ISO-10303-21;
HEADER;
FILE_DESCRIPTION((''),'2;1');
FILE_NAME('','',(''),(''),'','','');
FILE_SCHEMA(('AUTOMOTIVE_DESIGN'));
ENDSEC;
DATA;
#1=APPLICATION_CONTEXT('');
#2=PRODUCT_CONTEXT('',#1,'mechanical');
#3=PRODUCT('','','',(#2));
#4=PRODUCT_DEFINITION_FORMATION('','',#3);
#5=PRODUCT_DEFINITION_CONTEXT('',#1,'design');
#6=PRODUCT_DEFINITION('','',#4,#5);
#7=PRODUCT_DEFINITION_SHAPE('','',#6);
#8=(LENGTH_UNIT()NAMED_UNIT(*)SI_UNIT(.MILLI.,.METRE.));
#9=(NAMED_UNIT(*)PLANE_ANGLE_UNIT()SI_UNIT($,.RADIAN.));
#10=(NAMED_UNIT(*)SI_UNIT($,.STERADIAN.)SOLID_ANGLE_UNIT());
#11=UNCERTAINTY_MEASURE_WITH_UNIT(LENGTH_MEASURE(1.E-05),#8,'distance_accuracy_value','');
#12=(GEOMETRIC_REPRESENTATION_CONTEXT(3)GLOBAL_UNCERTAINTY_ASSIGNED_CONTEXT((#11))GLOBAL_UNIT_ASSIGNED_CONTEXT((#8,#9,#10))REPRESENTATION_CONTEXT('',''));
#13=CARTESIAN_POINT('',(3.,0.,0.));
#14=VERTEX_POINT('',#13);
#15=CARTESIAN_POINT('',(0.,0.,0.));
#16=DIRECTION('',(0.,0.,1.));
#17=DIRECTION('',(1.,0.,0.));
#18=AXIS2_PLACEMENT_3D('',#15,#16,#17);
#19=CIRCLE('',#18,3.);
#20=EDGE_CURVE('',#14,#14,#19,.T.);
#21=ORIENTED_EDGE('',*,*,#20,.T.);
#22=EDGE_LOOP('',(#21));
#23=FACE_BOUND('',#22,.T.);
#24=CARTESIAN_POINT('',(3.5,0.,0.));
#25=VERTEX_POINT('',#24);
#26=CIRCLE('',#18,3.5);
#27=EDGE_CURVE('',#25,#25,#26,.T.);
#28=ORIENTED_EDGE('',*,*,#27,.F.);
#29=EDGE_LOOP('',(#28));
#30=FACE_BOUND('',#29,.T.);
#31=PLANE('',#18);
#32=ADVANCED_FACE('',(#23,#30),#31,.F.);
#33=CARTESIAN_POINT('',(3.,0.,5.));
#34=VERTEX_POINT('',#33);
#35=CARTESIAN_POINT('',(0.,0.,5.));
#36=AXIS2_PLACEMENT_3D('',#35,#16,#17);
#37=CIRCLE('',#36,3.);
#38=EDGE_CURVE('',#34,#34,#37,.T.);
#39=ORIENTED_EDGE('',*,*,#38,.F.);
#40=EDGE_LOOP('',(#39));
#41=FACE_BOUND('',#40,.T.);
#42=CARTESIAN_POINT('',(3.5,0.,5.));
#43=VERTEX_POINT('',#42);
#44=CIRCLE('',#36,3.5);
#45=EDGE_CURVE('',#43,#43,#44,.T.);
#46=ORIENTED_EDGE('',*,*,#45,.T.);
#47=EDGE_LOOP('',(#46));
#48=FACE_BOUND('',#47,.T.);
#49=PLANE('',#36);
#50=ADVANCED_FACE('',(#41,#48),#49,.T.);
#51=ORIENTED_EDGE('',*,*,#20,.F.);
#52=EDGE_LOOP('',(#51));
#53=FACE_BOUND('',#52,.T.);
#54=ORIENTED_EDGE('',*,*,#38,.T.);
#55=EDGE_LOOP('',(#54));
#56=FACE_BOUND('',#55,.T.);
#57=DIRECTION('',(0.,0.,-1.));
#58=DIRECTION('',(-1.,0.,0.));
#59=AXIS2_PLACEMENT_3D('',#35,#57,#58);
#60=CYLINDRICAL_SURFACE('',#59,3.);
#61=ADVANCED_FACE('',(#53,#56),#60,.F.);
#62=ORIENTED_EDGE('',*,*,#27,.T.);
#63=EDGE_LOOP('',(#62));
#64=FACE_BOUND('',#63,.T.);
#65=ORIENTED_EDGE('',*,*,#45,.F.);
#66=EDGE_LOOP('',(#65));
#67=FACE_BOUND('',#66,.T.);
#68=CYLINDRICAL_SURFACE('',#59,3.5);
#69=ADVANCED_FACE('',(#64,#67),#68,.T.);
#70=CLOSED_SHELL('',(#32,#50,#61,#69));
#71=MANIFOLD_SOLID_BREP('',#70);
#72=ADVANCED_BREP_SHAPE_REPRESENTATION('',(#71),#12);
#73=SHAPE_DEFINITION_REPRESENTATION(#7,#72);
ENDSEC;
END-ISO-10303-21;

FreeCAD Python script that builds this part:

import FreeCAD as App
import Part
import Sketcher
Q = App.Units.Quantity

doc = App.newDocument("Part")
body = doc.addObject("PartDesign::Body", "Body")

sketch1 = doc.addObject("Sketcher::SketchObject", "Sketch")
body.addObject(sketch1)
sketch1.AttachmentSupport = (doc.XY_Plane, [""])
sketch1.MapMode = "FlatFace"
sketch1.addGeometry(Part.Circle(App.Vector(0, 0, 0), App.Vector(0, 0, 1), 3.5), False)
sketch1.addGeometry(Part.Circle(App.Vector(0, 0, 0), App.Vector(0, 0, 1), 3), False)
sketch1.addConstraint(Sketcher.Constraint("Coincident", 0, 3, -1, 1))
sketch1.addConstraint(Sketcher.Constraint("Coincident", 1, 3, -1, 1))
sketch1.addConstraint(Sketcher.Constraint("Diameter", 0, Q("7 mm")))
sketch1.addConstraint(Sketcher.Constraint("Diameter", 1, Q("6 mm")))
pad1 = doc.addObject("PartDesign::Pad", "Pad")
body.addObject(pad1)
pad1.Profile = sketch1
pad1.Length = 5

doc.recompute()
